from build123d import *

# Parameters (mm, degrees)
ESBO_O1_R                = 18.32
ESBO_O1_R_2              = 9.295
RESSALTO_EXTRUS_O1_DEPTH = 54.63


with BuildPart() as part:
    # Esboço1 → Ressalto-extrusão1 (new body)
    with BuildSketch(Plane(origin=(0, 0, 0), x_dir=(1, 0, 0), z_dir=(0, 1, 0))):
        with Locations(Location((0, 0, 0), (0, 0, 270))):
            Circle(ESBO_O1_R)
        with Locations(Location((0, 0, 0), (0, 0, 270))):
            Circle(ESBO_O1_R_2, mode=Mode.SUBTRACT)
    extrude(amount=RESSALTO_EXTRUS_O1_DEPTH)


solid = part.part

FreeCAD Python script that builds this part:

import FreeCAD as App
import Part
import Sketcher
from FreeCAD import Vector
Q = App.Units.Quantity

doc = App.newDocument("Part")
params = doc.addObject("Spreadsheet::Sheet", "Params")
for row, (alias, value) in enumerate([
    ("sketch1_diameter", "36.64 mm"),
    ("sketch1_diameter2", "18.59 mm"),
    ("pad1_length", "54.63 mm"),
], start=1):
    params.set(f"A{row}", alias)
    params.set(f"B{row}", "=" + value)
    params.setAlias(f"B{row}", alias)

body = doc.addObject("PartDesign::Body", "Body")

sketch1 = body.newObject("Sketcher::SketchObject", "Sketch")
sketch1.AttachmentSupport = (doc.getObject("XZ_Plane"), [""])
sketch1.MapMode = "FlatFace"
sketch1.addGeometry(Part.Circle(Vector(0, 0, 0), Vector(0, 0, 1), 18), False)
sketch1.addGeometry(Part.Circle(Vector(0, 0, 0), Vector(0, 0, 1), 9), False)
sketch1.addConstraint(Sketcher.Constraint("Coincident", 0, 3, -1, 1))
sketch1.addConstraint(Sketcher.Constraint("Coincident", 1, 3, -1, 1))
sketch1.addConstraint(Sketcher.Constraint("Diameter", 0, Q("36.64 mm")))
sketch1.addConstraint(Sketcher.Constraint("Diameter", 1, Q("18.59 mm")))
sketch1.setExpression("Constraints[2]", "Params.sketch1_diameter")
sketch1.setExpression("Constraints[3]", "Params.sketch1_diameter2")
pad1 = body.newObject("PartDesign::Pad", "Pad")
pad1.Profile = sketch1
pad1.setExpression("Length", "Params.pad1_length")
pad1.Reversed = True

doc.recompute()
